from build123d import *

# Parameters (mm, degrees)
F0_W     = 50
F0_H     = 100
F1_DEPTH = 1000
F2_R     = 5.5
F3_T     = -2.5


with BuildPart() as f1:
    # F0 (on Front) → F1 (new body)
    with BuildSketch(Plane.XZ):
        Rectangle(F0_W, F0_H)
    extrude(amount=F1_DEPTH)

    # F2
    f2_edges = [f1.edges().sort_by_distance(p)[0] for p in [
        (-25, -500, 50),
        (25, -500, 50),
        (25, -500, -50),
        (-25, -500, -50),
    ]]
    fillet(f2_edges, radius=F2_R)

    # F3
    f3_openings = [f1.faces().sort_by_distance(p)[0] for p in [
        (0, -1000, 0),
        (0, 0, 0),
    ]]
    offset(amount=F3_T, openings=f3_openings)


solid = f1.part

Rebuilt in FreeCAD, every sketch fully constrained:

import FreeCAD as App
import Part
import Sketcher

V = App.Vector


def edges_at(feature, points):
    """Names of the edges that pass closest to the given points."""
    edges = feature.Shape.Edges
    near = lambda p: min(range(len(edges)), key=lambda i: edges[i].distToShape(Part.Vertex(*p))[0])
    return sorted({f"Edge{near(p) + 1}" for p in points})


def faces_at(feature, points):
    """Names of the faces that lie closest to the given points."""
    faces = feature.Shape.Faces
    near = lambda p: min(range(len(faces)), key=lambda i: faces[i].distToShape(Part.Vertex(*p))[0])
    return sorted({f"Face{near(p) + 1}" for p in points})


def add_polygon(sketch, points):
    """Adds a closed chain of lines whose ends are joined by coincident constraints."""
    first, n = sketch.GeometryCount, len(points)
    for a, b in zip(points, points[1:] + points[:1]):
        sketch.addGeometry(Part.LineSegment(App.Vector(*a, 0), App.Vector(*b, 0)), False)
    for i in range(n):
        sketch.addConstraint(Sketcher.Constraint("Coincident", first + i, 2, first + (i + 1) % n, 1))

doc = App.newDocument("Part")
body = doc.addObject("PartDesign::Body", "Body")

sketch1 = body.newObject("Sketcher::SketchObject", "Sketch")
sketch1.AttachmentSupport = (doc.getObject("XZ_Plane"), [""])
sketch1.MapMode = "FlatFace"
add_polygon(sketch1, [(-25, 50), (-25, -50), (25, -50), (25, 50)])
sketch1.addConstraint([
    Sketcher.Constraint("Vertical", 0),
    Sketcher.Constraint("Horizontal", 1),
    Sketcher.Constraint("Vertical", 2),
    Sketcher.Constraint("Horizontal", 3),
    Sketcher.Constraint("Symmetric", 0, 2, 2, 2, -1, 1),
    Sketcher.Constraint("DistanceX", 1, 1, 1, 2, 50.0),
    Sketcher.Constraint("DistanceY", 0, 2, 0, 1, 100.0),
])
pad1 = body.newObject("PartDesign::Pad", "Pad")
pad1.Profile = sketch1
pad1.Length = 1000
doc.recompute()

fillet = body.newObject("PartDesign::Fillet", "Fillet")
fillet.Base = (pad1, edges_at(pad1, [
    (-25, -500, 50),
    (25, -500, 50),
    (25, -500, -50),
    (-25, -500, -50),
]))
fillet.Radius = 5.5
doc.recompute()

thickness = body.newObject("PartDesign::Thickness", "Thickness")
thickness.Base = (fillet, faces_at(fillet, [(0, -1000, 0), (0, 0, 0)]))
thickness.Value = 2.5
thickness.Reversed = True
thickness.Join = "Arc"

doc.recompute()
